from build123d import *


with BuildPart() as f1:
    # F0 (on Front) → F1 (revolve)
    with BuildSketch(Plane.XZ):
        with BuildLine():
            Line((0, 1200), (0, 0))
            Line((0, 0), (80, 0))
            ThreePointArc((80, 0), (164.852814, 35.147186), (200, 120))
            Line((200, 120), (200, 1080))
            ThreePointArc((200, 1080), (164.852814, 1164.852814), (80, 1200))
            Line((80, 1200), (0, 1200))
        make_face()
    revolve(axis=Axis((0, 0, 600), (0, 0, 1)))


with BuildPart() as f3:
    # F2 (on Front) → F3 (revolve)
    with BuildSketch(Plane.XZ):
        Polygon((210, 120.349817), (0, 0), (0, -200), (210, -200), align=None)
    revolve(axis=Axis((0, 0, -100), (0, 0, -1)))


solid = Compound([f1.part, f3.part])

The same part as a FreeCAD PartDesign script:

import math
import FreeCAD as App
import Part
import Sketcher


def add_polygon(sketch, points):
    """Adds a closed chain of lines whose ends are joined by coincident constraints."""
    first, n = sketch.GeometryCount, len(points)
    for a, b in zip(points, points[1:] + points[:1]):
        sketch.addGeometry(Part.LineSegment(App.Vector(*a, 0), App.Vector(*b, 0)), False)
    for i in range(n):
        sketch.addConstraint(Sketcher.Constraint("Coincident", first + i, 2, first + (i + 1) % n, 1))

doc = App.newDocument("Part")
params = doc.addObject("Spreadsheet::Sheet", "Params")
for row, (alias, value) in enumerate([
    ("sketch1_radius", "119.999999 mm"),
    ("sketch1_width", "80 mm"),
    ("sketch1_height", "1200 mm"),
    ("revolution_angle", "360 deg"),
    ("sketch2_width", "210 mm"),
    ("sketch2_height", "200 mm"),
    ("revolution2_angle", "360 deg"),
], start=1):
    params.set(f"A{row}", alias)
    params.set(f"B{row}", "=" + value)
    params.setAlias(f"B{row}", alias)

body = doc.addObject("PartDesign::Body", "Body")

# Sketch on XZ plane
sketch1 = body.newObject("Sketcher::SketchObject", "Sketch")
sketch1.AttachmentSupport = (doc.getObject("XZ_Plane"), [""])
sketch1.MapMode = "FlatFace"
sketch1.addGeometry(Part.LineSegment(App.Vector(0, 1200, 0), App.Vector(0, 0, 0)), False)
sketch1.addGeometry(Part.LineSegment(App.Vector(0, 0, 0), App.Vector(80, 0, 0)), False)
sketch1.addGeometry(Part.ArcOfCircle(Part.Circle(App.Vector(80, 120, 0), App.Vector(0, 0, 1), 120), math.radians(-90), math.radians(0)), False)
sketch1.addGeometry(Part.LineSegment(App.Vector(200, 120, 0), App.Vector(200, 1080, 0)), False)
sketch1.addGeometry(Part.ArcOfCircle(Part.Circle(App.Vector(80, 1080, 0), App.Vector(0, 0, 1), 120), math.radians(0), math.radians(90)), False)
sketch1.addGeometry(Part.LineSegment(App.Vector(80, 1200, 0), App.Vector(0, 1200, 0)), False)
sketch1.addConstraint(Sketcher.Constraint("Coincident", 0, 2, 1, 1))
sketch1.addConstraint(Sketcher.Constraint("Tangent", 1, 2, 2, 1))
sketch1.addConstraint(Sketcher.Constraint("Tangent", 2, 2, 3, 1))
sketch1.addConstraint(Sketcher.Constraint("Tangent", 3, 2, 4, 1))
sketch1.addConstraint(Sketcher.Constraint("Tangent", 4, 2, 5, 1))
sketch1.addConstraint(Sketcher.Constraint("Coincident", 5, 2, 0, 1))
sketch1.addConstraint(Sketcher.Constraint("Vertical", 0))
sketch1.addConstraint(Sketcher.Constraint("Horizontal", 1))
sketch1.addConstraint(Sketcher.Constraint("Vertical", 3))
sketch1.addConstraint(Sketcher.Constraint("Horizontal", 5))
sketch1.addConstraint(Sketcher.Constraint("Coincident", 0, 2, -1, 1))
sketch1.addConstraint(Sketcher.Constraint("Equal", 2, 4))
sketch1.addConstraint(Sketcher.Constraint("Radius", 2, 119.999999))
sketch1.addConstraint(Sketcher.Constraint("DistanceX", 1, 1, 1, 2, 80.0))
sketch1.addConstraint(Sketcher.Constraint("DistanceY", 0, 2, 0, 1, 1200.0))
sketch1.setExpression("Constraints[12]", "Params.sketch1_radius")
sketch1.setExpression("Constraints[13]", "Params.sketch1_width")
sketch1.setExpression("Constraints[14]", "Params.sketch1_height")
revolution = body.newObject("PartDesign::Revolution", "Revolution")
revolution.Profile = sketch1
revolution.ReferenceAxis = (sketch1, ["V_Axis"])
revolution.setExpression("Angle", "Params.revolution_angle")
body2 = doc.addObject("PartDesign::Body", "Body001")

# Sketch on XZ plane
sketch2 = body2.newObject("Sketcher::SketchObject", "Sketch001")
sketch2.AttachmentSupport = (doc.getObject("XZ_Plane001"), [""])
sketch2.MapMode = "FlatFace"
add_polygon(sketch2, [(210, 120), (0, 0), (0, -200), (210, -200)])  # lines 0-3
sketch2.addConstraint(Sketcher.Constraint("Vertical", 1))
sketch2.addConstraint(Sketcher.Constraint("Horizontal", 2))
sketch2.addConstraint(Sketcher.Constraint("Vertical", 3))
sketch2.addConstraint(Sketcher.Constraint("Coincident", 0, 2, -1, 1))
sketch2.addConstraint(Sketcher.Constraint("DistanceX", 2, 1, 2, 2, 210.0))
sketch2.addConstraint(Sketcher.Constraint("DistanceY", 1, 2, 1, 1, 200.0))
sketch2.addConstraint(Sketcher.Constraint("Distance", 0, 242.041481))
sketch2.setExpression("Constraints[8]", "Params.sketch2_width")
sketch2.setExpression("Constraints[9]", "Params.sketch2_height")
revolution2 = body2.newObject("PartDesign::Revolution", "Revolution001")
revolution2.Profile = sketch2
revolution2.ReferenceAxis = (sketch2, ["V_Axis"])
revolution2.setExpression("Angle", "Params.revolution2_angle")

doc.recompute()
